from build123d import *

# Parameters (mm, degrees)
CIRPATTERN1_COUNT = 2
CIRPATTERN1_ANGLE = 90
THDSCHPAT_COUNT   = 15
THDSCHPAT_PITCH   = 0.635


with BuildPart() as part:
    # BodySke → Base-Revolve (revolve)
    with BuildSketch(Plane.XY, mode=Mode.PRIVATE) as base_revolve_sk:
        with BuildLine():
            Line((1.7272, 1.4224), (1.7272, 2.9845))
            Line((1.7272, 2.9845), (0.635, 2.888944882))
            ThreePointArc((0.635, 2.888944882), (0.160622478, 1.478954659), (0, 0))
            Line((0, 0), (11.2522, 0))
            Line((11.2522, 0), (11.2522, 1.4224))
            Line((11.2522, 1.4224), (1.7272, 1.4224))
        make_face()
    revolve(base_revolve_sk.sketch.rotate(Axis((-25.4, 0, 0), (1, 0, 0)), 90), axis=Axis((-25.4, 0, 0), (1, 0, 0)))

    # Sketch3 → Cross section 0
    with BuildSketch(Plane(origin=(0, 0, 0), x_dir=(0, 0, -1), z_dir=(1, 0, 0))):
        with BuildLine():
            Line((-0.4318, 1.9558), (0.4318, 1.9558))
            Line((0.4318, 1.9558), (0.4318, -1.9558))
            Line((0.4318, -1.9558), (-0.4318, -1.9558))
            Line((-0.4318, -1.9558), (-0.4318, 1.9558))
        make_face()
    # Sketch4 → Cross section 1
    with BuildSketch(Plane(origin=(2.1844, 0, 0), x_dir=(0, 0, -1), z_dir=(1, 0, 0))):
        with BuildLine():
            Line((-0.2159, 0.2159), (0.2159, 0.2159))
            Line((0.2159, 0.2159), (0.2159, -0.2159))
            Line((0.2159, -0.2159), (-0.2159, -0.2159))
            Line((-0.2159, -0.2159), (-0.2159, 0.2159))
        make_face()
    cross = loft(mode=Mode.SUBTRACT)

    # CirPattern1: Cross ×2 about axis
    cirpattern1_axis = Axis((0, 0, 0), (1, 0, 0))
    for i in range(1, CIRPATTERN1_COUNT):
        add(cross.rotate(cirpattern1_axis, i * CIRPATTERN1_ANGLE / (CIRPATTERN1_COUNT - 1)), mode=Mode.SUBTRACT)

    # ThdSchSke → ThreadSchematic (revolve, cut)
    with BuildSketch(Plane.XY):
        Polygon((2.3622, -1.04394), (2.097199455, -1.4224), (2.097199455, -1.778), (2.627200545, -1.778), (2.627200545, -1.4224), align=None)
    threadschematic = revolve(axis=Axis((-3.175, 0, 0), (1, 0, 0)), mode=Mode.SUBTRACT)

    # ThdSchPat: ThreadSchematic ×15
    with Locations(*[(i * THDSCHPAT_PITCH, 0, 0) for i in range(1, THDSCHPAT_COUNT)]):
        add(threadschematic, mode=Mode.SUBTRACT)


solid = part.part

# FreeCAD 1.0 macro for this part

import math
import FreeCAD as App
import Part
import Sketcher
from FreeCAD import Vector
Q = App.Units.Quantity


def add_polygon(sketch, points):
    """Adds a closed chain of lines whose ends are joined by coincident constraints."""
    first, n = sketch.GeometryCount, len(points)
    for a, b in zip(points, points[1:] + points[:1]):
        sketch.addGeometry(Part.LineSegment(App.Vector(*a, 0), App.Vector(*b, 0)), False)
    for i in range(n):
        sketch.addConstraint(Sketcher.Constraint("Coincident", first + i, 2, first + (i + 1) % n, 1))

doc = App.newDocument("Part")
body = doc.addObject("PartDesign::Body", "Body")

sketch1 = body.newObject("Sketcher::SketchObject", "Sketch")
sketch1.AttachmentSupport = (doc.getObject("XY_Plane"), [""])
sketch1.MapMode = "FlatFace"
sketch1.addGeometry([
    Part.LineSegment(Vector(1.7272, 1.4224, 0), Vector(1.7272, 2.9845, 0)),
    Part.LineSegment(Vector(1.7272, 2.9845, 0), Vector(0.635, 2.888945, 0)),
    Part.ArcOfCircle(Part.Circle(Vector(6.889156, 0, 0), Vector(0, 0, 1), 6.889156), math.radians(155.206649), math.radians(180)),
    Part.LineSegment(Vector(0, 0, 0), Vector(11.2522, 0, 0)),
    Part.LineSegment(Vector(11.2522, 0, 0), Vector(11.2522, 1.4224, 0)),
    Part.LineSegment(Vector(11.2522, 1.4224, 0), Vector(1.7272, 1.4224, 0)),
], False)
sketch1.addConstraint([
    Sketcher.Constraint("Coincident", 0, 2, 1, 1),
    Sketcher.Constraint("Coincident", 1, 2, 2, 1),
    Sketcher.Constraint("Coincident", 2, 2, 3, 1),
    Sketcher.Constraint("Coincident", 3, 2, 4, 1),
    Sketcher.Constraint("Coincident", 4, 2, 5, 1),
    Sketcher.Constraint("Coincident", 5, 2, 0, 1),
    Sketcher.Constraint("Vertical", 0),
    Sketcher.Constraint("Horizontal", 3),
    Sketcher.Constraint("Vertical", 4),
    Sketcher.Constraint("Horizontal", 5),
    Sketcher.Constraint("Coincident", 2, 2, -1, 1),
    Sketcher.Constraint("PointOnObject", 2, 3, -1),
    Sketcher.Constraint("Angle", 1, Q("-175 deg")),
    Sketcher.Constraint("DistanceX", 3, 1, 3, 2, Q("0.443 in")),
    Sketcher.Constraint("DistanceX", 5, 2, 5, 1, Q("0.375 in")),
    Sketcher.Constraint("DistanceY", 4, 1, 4, 2, Q("0.056 in")),
    Sketcher.Constraint("DistanceY", 0, 1, 0, 2, Q("0.0615 in")),
    Sketcher.Constraint("DistanceX", -1, 1, 1, 2, Q("0.025 in")),
])
revolution = body.newObject("PartDesign::Revolution", "Revolution")
revolution.Profile = sketch1
revolution.ReferenceAxis = (sketch1, ["H_Axis"])
revolution.Angle = 360

sketch2 = body.newObject("Sketcher::SketchObject", "Sketch001")
sketch2.AttachmentSupport = (doc.getObject("YZ_Plane"), [""])
sketch2.MapMode = "FlatFace"
add_polygon(sketch2, [(1.9558, -0.4318), (1.9558, 0.4318), (-1.9558, 0.4318), (-1.9558, -0.4318)])
sketch2.addConstraint([
    Sketcher.Constraint("Vertical", 0),
    Sketcher.Constraint("Horizontal", 1),
    Sketcher.Constraint("Vertical", 2),
    Sketcher.Constraint("Horizontal", 3),
    Sketcher.Constraint("Symmetric", 0, 2, 2, 2, -1, 1),
    Sketcher.Constraint("DistanceX", 1, 2, 1, 1, Q("0.154 in")),
    Sketcher.Constraint("DistanceY", 0, 1, 0, 2, Q("0.034 in")),
])

sketch3 = body.newObject("Sketcher::SketchObject", "Sketch002")
sketch3.AttachmentSupport = (doc.getObject("YZ_Plane"), [""])
sketch3.MapMode = "FlatFace"
sketch3.AttachmentOffset = App.Placement(Vector(0, 0, 0.086 * 25.4), App.Rotation())
add_polygon(sketch3, [(0.2159, -0.2159), (0.2159, 0.2159), (-0.2159, 0.2159), (-0.2159, -0.2159)])
sketch3.addConstraint([
    Sketcher.Constraint("Vertical", 0),
    Sketcher.Constraint("Horizontal", 1),
    Sketcher.Constraint("Vertical", 2),
    Sketcher.Constraint("Horizontal", 3),
    Sketcher.Constraint("Symmetric", 0, 2, 2, 2, -1, 1),
    Sketcher.Constraint("Equal", 3, 0),
    Sketcher.Constraint("DistanceX", 1, 2, 1, 1, Q("0.017 in")),
])

subtractiveloft = body.newObject("PartDesign::SubtractiveLoft", "SubtractiveLoft")
subtractiveloft.Profile = sketch2
subtractiveloft.Sections = [sketch3]
doc.recompute()

polarpattern = body.newObject("PartDesign::PolarPattern", "PolarPattern")
polarpattern.Originals = [subtractiveloft]
polarpattern.Axis = (doc.getObject("X_Axis"), [""])
polarpattern.Angle = 90
polarpattern.Occurrences = 2
body.Tip = polarpattern

sketch4 = body.newObject("Sketcher::SketchObject", "Sketch003")
sketch4.AttachmentSupport = (doc.getObject("XY_Plane"), [""])
sketch4.MapMode = "FlatFace"
add_polygon(sketch4, [(2.3622, -1.04394), (2.097199, -1.4224), (2.097199, -1.778), (2.627201, -1.778), (2.627201, -1.4224)])
sketch4.addConstraint([
    Sketcher.Constraint("Vertical", 1),
    Sketcher.Constraint("Horizontal", 2),
    Sketcher.Constraint("Vertical", 3),
    Sketcher.Constraint("Horizontal", 0, 2, 3, 2),
    Sketcher.Constraint("Equal", 0, 4),
    Sketcher.Constraint("Angle", 0, Q("-125 deg")),
    Sketcher.Constraint("DistanceY", 1, 2, 1, 1, Q("0.014 in")),
    Sketcher.Constraint("DistanceY", 1, 2, -1, 1, Q("0.07 in")),
    Sketcher.Constraint("DistanceX", -1, 1, 4, 2, Q("0.093 in")),
    Sketcher.Constraint("DistanceX", 2, 1, 2, 2, 0.530001),
])
groove = body.newObject("PartDesign::Groove", "Groove")
groove.Profile = sketch4
groove.ReferenceAxis = (sketch4, ["H_Axis"])
groove.Angle = 360
doc.recompute()

linearpattern = body.newObject("PartDesign::LinearPattern", "LinearPattern")
linearpattern.Originals = [groove]
linearpattern.Direction = (doc.getObject("X_Axis"), [""])
linearpattern.Mode = "offset"
linearpattern.Offset = Q("0.025 in")
linearpattern.Occurrences = 15
body.Tip = linearpattern

doc.recompute()
